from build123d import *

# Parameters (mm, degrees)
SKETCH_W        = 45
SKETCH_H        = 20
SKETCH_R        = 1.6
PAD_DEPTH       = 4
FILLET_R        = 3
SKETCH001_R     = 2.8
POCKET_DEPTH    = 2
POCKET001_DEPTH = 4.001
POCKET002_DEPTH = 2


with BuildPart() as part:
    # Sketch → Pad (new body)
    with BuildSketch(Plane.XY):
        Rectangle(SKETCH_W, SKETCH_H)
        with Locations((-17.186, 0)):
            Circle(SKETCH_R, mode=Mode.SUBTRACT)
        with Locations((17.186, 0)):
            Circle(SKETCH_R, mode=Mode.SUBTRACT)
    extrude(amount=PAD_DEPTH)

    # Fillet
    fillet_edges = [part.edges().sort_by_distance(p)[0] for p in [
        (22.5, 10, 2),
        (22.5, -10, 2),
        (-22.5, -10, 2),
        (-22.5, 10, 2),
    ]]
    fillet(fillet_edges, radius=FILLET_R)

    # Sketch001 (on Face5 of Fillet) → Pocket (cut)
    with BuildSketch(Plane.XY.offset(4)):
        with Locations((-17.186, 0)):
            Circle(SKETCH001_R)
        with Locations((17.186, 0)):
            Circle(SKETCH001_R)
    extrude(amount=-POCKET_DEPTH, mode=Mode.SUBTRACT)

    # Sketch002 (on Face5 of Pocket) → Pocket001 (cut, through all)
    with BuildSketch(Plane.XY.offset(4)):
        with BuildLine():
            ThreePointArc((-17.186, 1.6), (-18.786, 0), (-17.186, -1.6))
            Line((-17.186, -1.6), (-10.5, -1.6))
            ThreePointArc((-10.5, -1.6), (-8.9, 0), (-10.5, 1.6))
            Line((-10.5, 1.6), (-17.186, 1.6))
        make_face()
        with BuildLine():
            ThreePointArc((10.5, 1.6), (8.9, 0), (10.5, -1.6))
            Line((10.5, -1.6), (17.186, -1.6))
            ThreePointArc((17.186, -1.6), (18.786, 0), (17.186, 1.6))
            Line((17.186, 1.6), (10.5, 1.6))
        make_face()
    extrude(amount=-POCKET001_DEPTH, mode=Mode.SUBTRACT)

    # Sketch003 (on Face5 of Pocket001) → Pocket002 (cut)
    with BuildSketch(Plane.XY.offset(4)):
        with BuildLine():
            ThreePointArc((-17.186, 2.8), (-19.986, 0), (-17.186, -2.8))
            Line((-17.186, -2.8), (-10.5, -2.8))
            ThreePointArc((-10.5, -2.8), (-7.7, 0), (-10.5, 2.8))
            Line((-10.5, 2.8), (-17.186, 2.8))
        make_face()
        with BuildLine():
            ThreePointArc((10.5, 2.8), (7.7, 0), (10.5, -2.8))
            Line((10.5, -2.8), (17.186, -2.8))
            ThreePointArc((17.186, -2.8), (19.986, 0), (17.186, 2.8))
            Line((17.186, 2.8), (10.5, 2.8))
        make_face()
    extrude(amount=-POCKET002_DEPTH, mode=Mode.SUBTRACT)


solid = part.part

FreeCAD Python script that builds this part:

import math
import FreeCAD as App
import Part
import Sketcher
from FreeCAD import Vector


def edges_at(feature, points):
    """Names of the edges that pass closest to the given points."""
    edges = feature.Shape.Edges
    near = lambda p: min(range(len(edges)), key=lambda i: edges[i].distToShape(Part.Vertex(*p))[0])
    return sorted({f"Edge{near(p) + 1}" for p in points})

doc = App.newDocument("Part")
body = doc.addObject("PartDesign::Body", "Body")

# Sketch on XY plane
sketch1 = doc.addObject("Sketcher::SketchObject", "Sketch")
body.addObject(sketch1)
sketch1.AttachmentSupport = (doc.XY_Plane, [""])
sketch1.MapMode = "FlatFace"
sketch1.addGeometry([
    Part.LineSegment(Vector(-22.5, 10, 0), Vector(-22.5, -10, 0)),  # 0
    Part.LineSegment(Vector(-22.5, -10, 0), Vector(22.5, -10, 0)),  # 1
    Part.LineSegment(Vector(22.5, -10, 0), Vector(22.5, 10, 0)),  # 2
    Part.LineSegment(Vector(22.5, 10, 0), Vector(-22.5, 10, 0)),  # 3
    Part.Circle(Vector(-17.2, 0, 0), Vector(0, 0, 1), 1.6),  # 4
    Part.Circle(Vector(17.2, 0, 0), Vector(0, 0, 1), 1.6),  # 5
], False)
sketch1.addConstraint([
    Sketcher.Constraint("Coincident", 0, 2, 1, 1),
    Sketcher.Constraint("Coincident", 1, 2, 2, 1),
    Sketcher.Constraint("Coincident", 2, 2, 3, 1),
    Sketcher.Constraint("Coincident", 3, 2, 0, 1),
    Sketcher.Constraint("Vertical", 0),
    Sketcher.Constraint("Horizontal", 1),
    Sketcher.Constraint("Vertical", 2),
    Sketcher.Constraint("Horizontal", 3),
    Sketcher.Constraint("Equal", 4, 5),
    Sketcher.Constraint("Symmetric", 4, 3, 5, 3, -1, 1),
    Sketcher.Constraint("Symmetric", 0, 2, 2, 2, -1, 1),
    Sketcher.Constraint("PointOnObject", 4, 3, -1),
    Sketcher.Constraint("Diameter", 4, 3.2),
    Sketcher.Constraint("DistanceX", 1, 1, 1, 2, 45.0),
    Sketcher.Constraint("DistanceY", 0, 2, 0, 1, 20.0),
    Sketcher.Constraint("DistanceX", 4, 3, -1, 1, 17.186),
])
pad1 = doc.addObject("PartDesign::Pad", "Pad")
body.addObject(pad1)
pad1.Profile = sketch1
pad1.Length = 4
doc.recompute()

fillet = doc.addObject("PartDesign::Fillet", "Fillet")
body.addObject(fillet)
fillet.Base = (pad1, edges_at(pad1, [
    (22.5, 10, 2),
    (22.5, -10, 2),
    (-22.5, -10, 2),
    (-22.5, 10, 2),
]))
fillet.Radius = 3

# Sketch on XY plane
sketch2 = doc.addObject("Sketcher::SketchObject", "Sketch001")
body.addObject(sketch2)
sketch2.AttachmentSupport = (doc.XY_Plane, [""])
sketch2.MapMode = "FlatFace"
sketch2.AttachmentOffset = App.Placement(Vector(0, 0, 4), App.Rotation())
sketch2.addGeometry([
    Part.Circle(Vector(-17.2, 0, 0), Vector(0, 0, 1), 2.8),
    Part.Circle(Vector(17.2, 0, 0), Vector(0, 0, 1), 2.8),
], False)
sketch2.addConstraint([
    Sketcher.Constraint("Equal", 0, 1),
    Sketcher.Constraint("Symmetric", 0, 3, 1, 3, -1, 1),
    Sketcher.Constraint("PointOnObject", 0, 3, -1),
    Sketcher.Constraint("Diameter", 0, 5.6),
    Sketcher.Constraint("DistanceX", 0, 3, -1, 1, 17.186),
])
pocket1 = doc.addObject("PartDesign::Pocket", "Pocket")
body.addObject(pocket1)
pocket1.Profile = sketch2
pocket1.Length = 2

# Sketch on XY plane
sketch3 = doc.addObject("Sketcher::SketchObject", "Sketch002")
body.addObject(sketch3)
sketch3.AttachmentSupport = (doc.XY_Plane, [""])
sketch3.MapMode = "FlatFace"
sketch3.AttachmentOffset = App.Placement(Vector(0, 0, 4), App.Rotation())
sketch3.addGeometry([
    Part.ArcOfCircle(Part.Circle(Vector(-17.2, 0, 0), Vector(0, 0, 1), 1.6), math.radians(90), math.radians(270)),  # 0
    Part.LineSegment(Vector(-17.2, -1.6, 0), Vector(-10.5, -1.6, 0)),  # 1
    Part.ArcOfCircle(Part.Circle(Vector(-10.5, 0, 0), Vector(0, 0, 1), 1.6), math.radians(-90), math.radians(90)),  # 2
    Part.LineSegment(Vector(-10.5, 1.6, 0), Vector(-17.2, 1.6, 0)),  # 3
    Part.ArcOfCircle(Part.Circle(Vector(10.5, 0, 0), Vector(0, 0, 1), 1.6), math.radians(90), math.radians(270)),  # 4
    Part.LineSegment(Vector(10.5, -1.6, 0), Vector(17.2, -1.6, 0)),  # 5
    Part.ArcOfCircle(Part.Circle(Vector(17.2, 0, 0), Vector(0, 0, 1), 1.6), math.radians(-90), math.radians(90)),  # 6
    Part.LineSegment(Vector(17.2, 1.6, 0), Vector(10.5, 1.6, 0)),  # 7
], False)
sketch3.addConstraint([
    Sketcher.Constraint("Tangent", 0, 2, 1, 1),
    Sketcher.Constraint("Tangent", 1, 2, 2, 1),
    Sketcher.Constraint("Tangent", 2, 2, 3, 1),
    Sketcher.Constraint("Tangent", 3, 2, 0, 1),
    Sketcher.Constraint("Tangent", 4, 2, 5, 1),
    Sketcher.Constraint("Tangent", 5, 2, 6, 1),
    Sketcher.Constraint("Tangent", 6, 2, 7, 1),
    Sketcher.Constraint("Tangent", 7, 2, 4, 1),
    Sketcher.Constraint("Horizontal", 1),
    Sketcher.Constraint("Horizontal", 3),
    Sketcher.Constraint("Horizontal", 5),
    Sketcher.Constraint("Horizontal", 7),
    Sketcher.Constraint("Equal", 2, 4),
    Sketcher.Constraint("Symmetric", 2, 3, 4, 3, -1, 1),
    Sketcher.Constraint("Symmetric", 0, 3, 6, 3, -2),
    Sketcher.Constraint("Radius", 0, 1.6),
    Sketcher.Constraint("DistanceX", 2, 3, 4, 3, 21.0),
    Sketcher.Constraint("DistanceX", 1, 1, 1, 2, 6.686),
])
pocket2 = doc.addObject("PartDesign::Pocket", "Pocket001")
body.addObject(pocket2)
pocket2.Profile = sketch3
pocket2.Type = "ThroughAll"

# Sketch on XY plane
sketch4 = doc.addObject("Sketcher::SketchObject", "Sketch003")
body.addObject(sketch4)
sketch4.AttachmentSupport = (doc.XY_Plane, [""])
sketch4.MapMode = "FlatFace"
sketch4.AttachmentOffset = App.Placement(Vector(0, 0, 4), App.Rotation())
sketch4.addGeometry([
    Part.ArcOfCircle(Part.Circle(Vector(-17.2, 0, 0), Vector(0, 0, 1), 2.8), math.radians(90), math.radians(270)),  # 0
    Part.LineSegment(Vector(-17.2, -2.8, 0), Vector(-10.5, -2.8, 0)),  # 1
    Part.ArcOfCircle(Part.Circle(Vector(-10.5, 0, 0), Vector(0, 0, 1), 2.8), math.radians(-90), math.radians(90)),  # 2
    Part.LineSegment(Vector(-10.5, 2.8, 0), Vector(-17.2, 2.8, 0)),  # 3
    Part.ArcOfCircle(Part.Circle(Vector(10.5, 0, 0), Vector(0, 0, 1), 2.8), math.radians(90), math.radians(270)),  # 4
    Part.LineSegment(Vector(10.5, -2.8, 0), Vector(17.2, -2.8, 0)),  # 5
    Part.ArcOfCircle(Part.Circle(Vector(17.2, 0, 0), Vector(0, 0, 1), 2.8), math.radians(-90), math.radians(90)),  # 6
    Part.LineSegment(Vector(17.2, 2.8, 0), Vector(10.5, 2.8, 0)),  # 7
], False)
sketch4.addConstraint([
    Sketcher.Constraint("Tangent", 0, 2, 1, 1),
    Sketcher.Constraint("Tangent", 1, 2, 2, 1),
    Sketcher.Constraint("Tangent", 2, 2, 3, 1),
    Sketcher.Constraint("Tangent", 3, 2, 0, 1),
    Sketcher.Constraint("Tangent", 4, 2, 5, 1),
    Sketcher.Constraint("Tangent", 5, 2, 6, 1),
    Sketcher.Constraint("Tangent", 6, 2, 7, 1),
    Sketcher.Constraint("Tangent", 7, 2, 4, 1),
    Sketcher.Constraint("Horizontal", 1),
    Sketcher.Constraint("Horizontal", 3),
    Sketcher.Constraint("Horizontal", 5),
    Sketcher.Constraint("Horizontal", 7),
    Sketcher.Constraint("Equal", 2, 4),
    Sketcher.Constraint("Symmetric", 2, 3, 4, 3, -1, 1),
    Sketcher.Constraint("Symmetric", 0, 3, 6, 3, -2),
    Sketcher.Constraint("Radius", 0, 2.8),
    Sketcher.Constraint("DistanceX", 2, 3, 4, 3, 21.0),
    Sketcher.Constraint("DistanceX", 1, 1, 1, 2, 6.686),
])
pocket3 = doc.addObject("PartDesign::Pocket", "Pocket002")
body.addObject(pocket3)
pocket3.Profile = sketch4
pocket3.Length = 2

doc.recompute()
